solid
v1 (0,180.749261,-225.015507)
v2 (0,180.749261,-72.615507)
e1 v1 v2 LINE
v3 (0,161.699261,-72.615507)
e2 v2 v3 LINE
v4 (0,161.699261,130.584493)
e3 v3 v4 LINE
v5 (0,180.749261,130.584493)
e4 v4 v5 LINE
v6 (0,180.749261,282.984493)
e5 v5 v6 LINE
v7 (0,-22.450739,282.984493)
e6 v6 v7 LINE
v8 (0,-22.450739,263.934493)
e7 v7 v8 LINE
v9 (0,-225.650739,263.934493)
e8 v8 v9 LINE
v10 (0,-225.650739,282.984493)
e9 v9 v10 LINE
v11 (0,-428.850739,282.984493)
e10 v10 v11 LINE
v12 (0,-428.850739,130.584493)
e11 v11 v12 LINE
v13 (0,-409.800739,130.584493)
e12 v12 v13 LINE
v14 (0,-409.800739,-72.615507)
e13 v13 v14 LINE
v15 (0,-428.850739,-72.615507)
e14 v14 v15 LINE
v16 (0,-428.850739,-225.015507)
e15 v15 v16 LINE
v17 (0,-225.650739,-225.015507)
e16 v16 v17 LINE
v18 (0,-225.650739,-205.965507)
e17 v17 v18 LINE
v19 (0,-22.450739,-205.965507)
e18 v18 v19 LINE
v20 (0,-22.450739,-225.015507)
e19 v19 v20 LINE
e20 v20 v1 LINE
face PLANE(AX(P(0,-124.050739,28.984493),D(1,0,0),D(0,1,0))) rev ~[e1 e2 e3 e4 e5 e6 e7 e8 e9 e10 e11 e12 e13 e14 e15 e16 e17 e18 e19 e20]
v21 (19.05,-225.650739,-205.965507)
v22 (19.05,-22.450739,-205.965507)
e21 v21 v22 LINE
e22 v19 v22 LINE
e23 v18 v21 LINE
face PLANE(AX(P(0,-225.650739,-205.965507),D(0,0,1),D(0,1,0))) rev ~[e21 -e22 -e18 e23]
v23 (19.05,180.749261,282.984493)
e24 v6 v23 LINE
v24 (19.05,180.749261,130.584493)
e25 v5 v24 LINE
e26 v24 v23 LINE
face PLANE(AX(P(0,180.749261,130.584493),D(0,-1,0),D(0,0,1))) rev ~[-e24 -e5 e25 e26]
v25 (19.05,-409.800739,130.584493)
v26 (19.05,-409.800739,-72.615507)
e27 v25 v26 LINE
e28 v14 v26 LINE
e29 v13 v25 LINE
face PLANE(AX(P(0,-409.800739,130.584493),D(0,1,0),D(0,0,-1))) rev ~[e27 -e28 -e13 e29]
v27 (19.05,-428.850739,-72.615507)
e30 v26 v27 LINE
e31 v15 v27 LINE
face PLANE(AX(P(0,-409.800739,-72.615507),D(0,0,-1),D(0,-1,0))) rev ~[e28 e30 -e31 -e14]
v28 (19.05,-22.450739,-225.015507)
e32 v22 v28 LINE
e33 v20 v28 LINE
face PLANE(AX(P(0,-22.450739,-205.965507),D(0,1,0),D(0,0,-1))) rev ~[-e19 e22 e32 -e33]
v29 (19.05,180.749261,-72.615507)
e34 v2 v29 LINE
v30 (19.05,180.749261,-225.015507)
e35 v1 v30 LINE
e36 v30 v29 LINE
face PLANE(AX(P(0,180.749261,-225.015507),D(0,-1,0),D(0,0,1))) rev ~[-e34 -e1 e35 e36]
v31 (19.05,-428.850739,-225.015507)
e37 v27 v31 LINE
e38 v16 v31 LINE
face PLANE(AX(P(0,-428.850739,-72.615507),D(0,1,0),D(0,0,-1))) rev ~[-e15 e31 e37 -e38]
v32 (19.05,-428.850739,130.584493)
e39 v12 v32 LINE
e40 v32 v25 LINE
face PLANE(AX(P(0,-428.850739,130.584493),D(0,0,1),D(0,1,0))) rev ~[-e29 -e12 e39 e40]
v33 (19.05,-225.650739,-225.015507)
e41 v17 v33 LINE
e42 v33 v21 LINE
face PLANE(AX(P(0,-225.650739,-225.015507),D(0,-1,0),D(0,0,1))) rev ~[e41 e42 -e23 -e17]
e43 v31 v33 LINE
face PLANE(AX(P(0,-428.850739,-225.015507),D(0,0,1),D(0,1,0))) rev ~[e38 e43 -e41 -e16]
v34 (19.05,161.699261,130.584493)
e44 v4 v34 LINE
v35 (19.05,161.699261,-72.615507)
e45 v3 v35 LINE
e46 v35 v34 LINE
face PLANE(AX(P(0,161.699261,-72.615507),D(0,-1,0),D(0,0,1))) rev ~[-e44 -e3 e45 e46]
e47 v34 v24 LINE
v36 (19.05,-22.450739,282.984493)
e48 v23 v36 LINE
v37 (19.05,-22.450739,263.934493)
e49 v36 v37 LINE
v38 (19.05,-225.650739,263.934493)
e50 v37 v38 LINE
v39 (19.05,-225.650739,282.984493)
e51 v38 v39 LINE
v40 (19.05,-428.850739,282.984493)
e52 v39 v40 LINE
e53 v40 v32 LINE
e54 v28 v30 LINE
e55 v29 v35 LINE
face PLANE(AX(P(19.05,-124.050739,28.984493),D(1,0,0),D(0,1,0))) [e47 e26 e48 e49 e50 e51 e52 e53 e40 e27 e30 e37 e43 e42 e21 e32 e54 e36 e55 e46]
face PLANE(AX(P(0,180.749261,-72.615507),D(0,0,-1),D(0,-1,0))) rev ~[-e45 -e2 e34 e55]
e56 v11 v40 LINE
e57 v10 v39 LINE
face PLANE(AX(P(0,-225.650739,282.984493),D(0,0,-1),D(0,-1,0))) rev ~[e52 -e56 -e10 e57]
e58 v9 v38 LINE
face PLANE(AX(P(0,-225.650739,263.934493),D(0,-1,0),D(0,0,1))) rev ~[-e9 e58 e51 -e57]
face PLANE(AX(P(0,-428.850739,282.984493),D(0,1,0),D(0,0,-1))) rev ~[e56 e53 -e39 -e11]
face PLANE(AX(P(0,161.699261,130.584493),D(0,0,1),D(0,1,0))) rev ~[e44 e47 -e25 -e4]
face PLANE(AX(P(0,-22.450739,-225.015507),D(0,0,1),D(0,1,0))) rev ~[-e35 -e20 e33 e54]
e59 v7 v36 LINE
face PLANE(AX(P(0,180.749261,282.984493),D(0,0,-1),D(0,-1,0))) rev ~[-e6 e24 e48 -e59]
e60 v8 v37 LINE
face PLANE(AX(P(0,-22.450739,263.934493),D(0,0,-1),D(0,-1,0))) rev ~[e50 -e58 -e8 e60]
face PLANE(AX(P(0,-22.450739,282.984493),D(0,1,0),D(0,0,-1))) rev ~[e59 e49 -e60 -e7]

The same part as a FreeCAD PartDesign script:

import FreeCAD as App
import Part
import Sketcher
Q = App.Units.Quantity


def add_polygon(sketch, points):
    """Adds a closed chain of lines whose ends are joined by coincident constraints."""
    first, n = sketch.GeometryCount, len(points)
    for a, b in zip(points, points[1:] + points[:1]):
        sketch.addGeometry(Part.LineSegment(App.Vector(*a, 0), App.Vector(*b, 0)), False)
    for i in range(n):
        sketch.addConstraint(Sketcher.Constraint("Coincident", first + i, 2, first + (i + 1) % n, 1))

doc = App.newDocument("Part")
body = doc.addObject("PartDesign::Body", "Body")

sketch1 = body.newObject("Sketcher::SketchObject", "Sketch")
sketch1.AttachmentSupport = (doc.getObject("YZ_Plane"), [""])
sketch1.MapMode = "FlatFace"
add_polygon(sketch1, [(-226, 283), (-429, 283), (-429, 131), (-410, 131), (-410, -73), (-429, -73), (-429, -225), (-226, -225), (-226, -206), (-22, -206), (-22, -225), (181, -225), (181, -73), (162, -73), (162, 131), (181, 131), (181, 283), (-22, 283), (-22, 264), (-226, 264)])
sketch1.addConstraint(Sketcher.Constraint("Horizontal", 0))
sketch1.addConstraint(Sketcher.Constraint("Vertical", 1))
sketch1.addConstraint(Sketcher.Constraint("Horizontal", 2))
sketch1.addConstraint(Sketcher.Constraint("Vertical", 3))
sketch1.addConstraint(Sketcher.Constraint("Horizontal", 4))
sketch1.addConstraint(Sketcher.Constraint("Vertical", 5))
sketch1.addConstraint(Sketcher.Constraint("Horizontal", 6))
sketch1.addConstraint(Sketcher.Constraint("Vertical", 7))
sketch1.addConstraint(Sketcher.Constraint("Horizontal", 8))
sketch1.addConstraint(Sketcher.Constraint("Vertical", 9))
sketch1.addConstraint(Sketcher.Constraint("Horizontal", 10))
sketch1.addConstraint(Sketcher.Constraint("Vertical", 11))
sketch1.addConstraint(Sketcher.Constraint("Horizontal", 12))
sketch1.addConstraint(Sketcher.Constraint("Vertical", 13))
sketch1.addConstraint(Sketcher.Constraint("Horizontal", 14))
sketch1.addConstraint(Sketcher.Constraint("Vertical", 15))
sketch1.addConstraint(Sketcher.Constraint("Horizontal", 16))
sketch1.addConstraint(Sketcher.Constraint("Vertical", 17))
sketch1.addConstraint(Sketcher.Constraint("Horizontal", 18))
sketch1.addConstraint(Sketcher.Constraint("Vertical", 19))
sketch1.addConstraint(Sketcher.Constraint("Horizontal", 6, 2, 9, 2))
sketch1.addConstraint(Sketcher.Constraint("Horizontal", 4, 2, 11, 2))
sketch1.addConstraint(Sketcher.Constraint("Horizontal", 2, 2, 13, 2))
sketch1.addConstraint(Sketcher.Constraint("Horizontal", 0, 2, 15, 2))
sketch1.addConstraint(Sketcher.Constraint("Vertical", 1, 2, 4, 2))
sketch1.addConstraint(Sketcher.Constraint("Vertical", 11, 2, 14, 2))
sketch1.addConstraint(Sketcher.Constraint("Vertical", 9, 2, 16, 2))
sketch1.addConstraint(Sketcher.Constraint("Vertical", 7, 2, 18, 2))
sketch1.addConstraint(Sketcher.Constraint("Equal", 6, 8))
sketch1.addConstraint(Sketcher.Constraint("Equal", 8, 10))
sketch1.addConstraint(Sketcher.Constraint("Equal", 4, 12))
sketch1.addConstraint(Sketcher.Constraint("Equal", 18, 3))
sketch1.addConstraint(Sketcher.Constraint("Equal", 1, 5))
sketch1.addConstraint(Sketcher.Constraint("Equal", 14, 7))
sketch1.addConstraint(Sketcher.Constraint("Equal", 9, 17))
sketch1.addConstraint(Sketcher.Constraint("DistanceX", 0, 2, 0, 1, Q("8 in")))
sketch1.addConstraint(Sketcher.Constraint("DistanceY", 1, 2, 1, 1, Q("6 in")))
sketch1.addConstraint(Sketcher.Constraint("DistanceX", 2, 1, 2, 2, Q("0.75 in")))
sketch1.addConstraint(Sketcher.Constraint("DistanceX", 0, 2, -1, 1, Q("428.850739 mm")))
sketch1.addConstraint(Sketcher.Constraint("DistanceY", -1, 1, 0, 2, Q("282.984493 mm")))
pad1 = body.newObject("PartDesign::Pad", "Pad")
pad1.Profile = sketch1
pad1.Length = Q("0.75 in")

doc.recompute()
